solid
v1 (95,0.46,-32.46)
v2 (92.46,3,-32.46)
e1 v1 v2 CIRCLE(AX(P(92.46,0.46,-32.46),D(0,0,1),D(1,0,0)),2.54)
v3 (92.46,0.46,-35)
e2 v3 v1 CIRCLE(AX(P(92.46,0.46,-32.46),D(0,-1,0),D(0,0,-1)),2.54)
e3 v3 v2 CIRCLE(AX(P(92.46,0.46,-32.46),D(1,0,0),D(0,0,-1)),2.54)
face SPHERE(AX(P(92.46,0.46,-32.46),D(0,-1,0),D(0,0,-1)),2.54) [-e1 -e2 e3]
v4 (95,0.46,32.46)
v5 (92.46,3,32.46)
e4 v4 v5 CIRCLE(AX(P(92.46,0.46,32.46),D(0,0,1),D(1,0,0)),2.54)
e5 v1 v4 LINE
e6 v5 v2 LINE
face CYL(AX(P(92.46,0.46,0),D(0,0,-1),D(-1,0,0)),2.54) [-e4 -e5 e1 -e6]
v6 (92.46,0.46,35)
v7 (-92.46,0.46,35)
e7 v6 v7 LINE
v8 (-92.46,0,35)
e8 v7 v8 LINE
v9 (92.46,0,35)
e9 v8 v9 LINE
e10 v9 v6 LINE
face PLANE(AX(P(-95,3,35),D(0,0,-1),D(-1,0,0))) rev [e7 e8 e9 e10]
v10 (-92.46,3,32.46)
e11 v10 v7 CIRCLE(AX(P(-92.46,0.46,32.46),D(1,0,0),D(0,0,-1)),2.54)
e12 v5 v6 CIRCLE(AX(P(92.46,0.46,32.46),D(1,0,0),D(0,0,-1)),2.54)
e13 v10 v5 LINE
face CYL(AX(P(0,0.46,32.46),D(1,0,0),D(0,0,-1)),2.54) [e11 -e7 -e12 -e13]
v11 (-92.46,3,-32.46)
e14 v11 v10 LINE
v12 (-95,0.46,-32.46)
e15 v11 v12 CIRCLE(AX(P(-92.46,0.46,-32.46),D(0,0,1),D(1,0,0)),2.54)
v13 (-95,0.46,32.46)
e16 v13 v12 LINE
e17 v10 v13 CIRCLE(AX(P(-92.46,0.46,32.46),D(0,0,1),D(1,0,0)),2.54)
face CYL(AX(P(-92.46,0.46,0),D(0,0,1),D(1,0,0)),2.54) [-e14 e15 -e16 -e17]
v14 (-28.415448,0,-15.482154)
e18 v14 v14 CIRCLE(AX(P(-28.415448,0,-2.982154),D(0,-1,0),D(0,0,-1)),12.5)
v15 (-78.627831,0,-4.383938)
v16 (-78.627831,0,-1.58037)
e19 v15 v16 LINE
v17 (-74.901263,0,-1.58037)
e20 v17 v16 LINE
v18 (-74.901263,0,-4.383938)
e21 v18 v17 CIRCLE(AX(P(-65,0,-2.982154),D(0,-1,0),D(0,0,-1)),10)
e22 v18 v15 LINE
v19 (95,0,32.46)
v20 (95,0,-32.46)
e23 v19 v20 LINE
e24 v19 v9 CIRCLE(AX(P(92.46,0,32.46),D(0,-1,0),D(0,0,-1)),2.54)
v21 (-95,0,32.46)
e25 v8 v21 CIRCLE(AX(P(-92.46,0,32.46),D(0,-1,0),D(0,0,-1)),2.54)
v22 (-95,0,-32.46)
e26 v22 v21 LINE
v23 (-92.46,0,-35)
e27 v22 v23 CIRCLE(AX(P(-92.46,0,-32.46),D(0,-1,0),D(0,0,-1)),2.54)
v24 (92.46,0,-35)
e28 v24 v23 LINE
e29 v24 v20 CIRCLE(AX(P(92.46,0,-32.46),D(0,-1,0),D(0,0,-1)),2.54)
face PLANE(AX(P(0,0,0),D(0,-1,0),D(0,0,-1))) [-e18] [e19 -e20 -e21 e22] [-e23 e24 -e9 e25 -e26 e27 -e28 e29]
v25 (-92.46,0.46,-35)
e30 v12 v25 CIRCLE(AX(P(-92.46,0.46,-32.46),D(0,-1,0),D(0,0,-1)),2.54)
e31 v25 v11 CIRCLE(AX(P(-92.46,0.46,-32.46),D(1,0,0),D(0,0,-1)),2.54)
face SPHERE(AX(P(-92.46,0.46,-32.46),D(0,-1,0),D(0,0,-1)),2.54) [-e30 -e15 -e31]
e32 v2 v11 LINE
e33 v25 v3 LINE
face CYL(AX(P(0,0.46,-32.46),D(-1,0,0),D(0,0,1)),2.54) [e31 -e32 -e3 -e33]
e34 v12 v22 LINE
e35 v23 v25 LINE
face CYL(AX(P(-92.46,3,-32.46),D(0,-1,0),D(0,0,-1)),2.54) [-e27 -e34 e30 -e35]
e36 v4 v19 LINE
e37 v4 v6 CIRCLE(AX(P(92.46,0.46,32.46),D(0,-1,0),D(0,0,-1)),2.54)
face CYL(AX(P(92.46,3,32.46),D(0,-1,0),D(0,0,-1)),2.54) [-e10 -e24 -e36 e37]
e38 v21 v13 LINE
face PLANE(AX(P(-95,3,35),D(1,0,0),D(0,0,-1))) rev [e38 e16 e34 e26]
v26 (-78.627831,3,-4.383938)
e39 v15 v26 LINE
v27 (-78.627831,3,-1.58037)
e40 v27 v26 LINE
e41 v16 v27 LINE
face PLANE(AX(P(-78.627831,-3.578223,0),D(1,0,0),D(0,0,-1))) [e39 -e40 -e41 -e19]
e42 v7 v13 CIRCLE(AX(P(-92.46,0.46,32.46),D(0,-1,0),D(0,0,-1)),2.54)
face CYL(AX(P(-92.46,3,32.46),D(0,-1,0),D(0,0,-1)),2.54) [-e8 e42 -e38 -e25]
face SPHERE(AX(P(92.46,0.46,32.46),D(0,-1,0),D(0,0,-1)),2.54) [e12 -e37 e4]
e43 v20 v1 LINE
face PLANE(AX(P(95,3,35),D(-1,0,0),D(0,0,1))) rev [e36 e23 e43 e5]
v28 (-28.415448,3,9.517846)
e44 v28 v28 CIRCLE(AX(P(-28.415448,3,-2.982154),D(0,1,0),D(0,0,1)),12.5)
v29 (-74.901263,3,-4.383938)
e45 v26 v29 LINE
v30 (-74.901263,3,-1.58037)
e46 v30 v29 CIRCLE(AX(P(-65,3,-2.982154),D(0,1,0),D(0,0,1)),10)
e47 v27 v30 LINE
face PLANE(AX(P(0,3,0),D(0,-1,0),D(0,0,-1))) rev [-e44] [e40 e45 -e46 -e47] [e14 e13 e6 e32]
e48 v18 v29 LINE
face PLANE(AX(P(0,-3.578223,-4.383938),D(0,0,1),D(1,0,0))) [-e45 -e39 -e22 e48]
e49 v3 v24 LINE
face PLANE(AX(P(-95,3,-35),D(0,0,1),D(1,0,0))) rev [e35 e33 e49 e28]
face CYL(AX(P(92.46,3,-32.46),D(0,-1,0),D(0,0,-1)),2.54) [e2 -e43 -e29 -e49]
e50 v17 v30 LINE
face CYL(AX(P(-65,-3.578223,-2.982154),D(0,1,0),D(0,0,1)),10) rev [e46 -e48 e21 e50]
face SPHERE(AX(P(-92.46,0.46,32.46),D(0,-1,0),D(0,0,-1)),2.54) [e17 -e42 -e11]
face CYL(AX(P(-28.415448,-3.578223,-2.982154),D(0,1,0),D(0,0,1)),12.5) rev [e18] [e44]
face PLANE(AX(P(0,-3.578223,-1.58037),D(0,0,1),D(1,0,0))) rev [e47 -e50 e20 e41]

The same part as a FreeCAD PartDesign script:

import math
import FreeCAD as App
import Part
import Sketcher
Q = App.Units.Quantity


def edges_at(feature, points):
    """Names of the edges that pass closest to the given points."""
    edges = feature.Shape.Edges
    near = lambda p: min(range(len(edges)), key=lambda i: edges[i].distToShape(Part.Vertex(*p))[0])
    return sorted({f"Edge{near(p) + 1}" for p in points})

doc = App.newDocument("Part")
body = doc.addObject("PartDesign::Body", "Body")

# Sketch on XZ plane
sketch1 = doc.addObject("Sketcher::SketchObject", "Sketch")
body.addObject(sketch1)
sketch1.AttachmentSupport = (doc.XZ_Plane, [""])
sketch1.MapMode = "FlatFace"
sketch1.addGeometry([
    Part.LineSegment(App.Vector(-95, -35, 0), App.Vector(-95, 35, 0)),
    Part.LineSegment(App.Vector(-95, 35, 0), App.Vector(95, 35, 0)),
    Part.LineSegment(App.Vector(95, 35, 0), App.Vector(95, -35, 0)),
    Part.LineSegment(App.Vector(95, -35, 0), App.Vector(-95, -35, 0)),
], False)
sketch1.addConstraint([
    Sketcher.Constraint("Coincident", 0, 2, 1, 1),
    Sketcher.Constraint("Coincident", 1, 2, 2, 1),
    Sketcher.Constraint("Coincident", 2, 2, 3, 1),
    Sketcher.Constraint("Coincident", 3, 2, 0, 1),
    Sketcher.Constraint("Vertical", 0),
    Sketcher.Constraint("Horizontal", 1),
    Sketcher.Constraint("Vertical", 2),
    Sketcher.Constraint("Horizontal", 3),
    Sketcher.Constraint("Symmetric", 0, 2, 2, 2, -1, 1),
    Sketcher.Constraint("DistanceX", 1, 1, 1, 2, Q("190 mm")),
    Sketcher.Constraint("DistanceY", 0, 1, 0, 2, Q("70 mm")),
])
pad1 = doc.addObject("PartDesign::Pad", "Pad")
body.addObject(pad1)
pad1.Profile = sketch1
pad1.Length = 3
pad1.Reversed = True
doc.recompute()

fillet = doc.addObject("PartDesign::Fillet", "Fillet")
body.addObject(fillet)
fillet.Base = (pad1, edges_at(pad1, [
    (95, 1.5, 35),
    (-95, 1.5, 35),
    (-95, 1.5, -35),
    (95, 1.5, -35),
]))
fillet.Radius = 2.54
doc.recompute()

fillet2 = doc.addObject("PartDesign::Fillet", "Fillet001")
body.addObject(fillet2)
fillet2.Base = (fillet, edges_at(fillet, [
    (0, 3, -35),
    (95, 3, 0),
    (-95, 3, 0),
    (0, 3, 35),
    (-94.256, 3, -34.256),
    (-94.256, 3, 34.256),
    (94.256, 3, 34.256),
    (94.256, 3, -34.256),
]))
fillet2.Radius = 2.54

# Sketch on XZ plane
sketch2 = doc.addObject("Sketcher::SketchObject", "Sketch001")
body.addObject(sketch2)
sketch2.AttachmentSupport = (doc.XZ_Plane, [""])
sketch2.MapMode = "FlatFace"
sketch2.AttachmentOffset = App.Placement(App.Vector(0, 0, -3), App.Rotation())
sketch2.addGeometry([
    Part.ArcOfCircle(Part.Circle(App.Vector(-65, -3, 0), App.Vector(0, 0, 1), 10), math.radians(0), math.radians(172)),  # 0
    Part.ArcOfCircle(Part.Circle(App.Vector(-65, -3, 0), App.Vector(0, 0, 1), 10), math.radians(-172), math.radians(0)),  # 1
    Part.LineSegment(App.Vector(-74.9, -4.4, 0), App.Vector(-78.6, -4.4, 0)),  # 2
    Part.LineSegment(App.Vector(-78.6, -4.4, 0), App.Vector(-78.6, -1.6, 0)),  # 3
    Part.LineSegment(App.Vector(-78.6, -1.6, 0), App.Vector(-74.9, -1.6, 0)),  # 4
    Part.Circle(App.Vector(-28.4, -3, 0), App.Vector(0, 0, 1), 12.5),  # 5
], False)
sketch2.addConstraint([
    Sketcher.Constraint("Tangent", 0, 1, 1, 2),
    Sketcher.Constraint("Coincident", 1, 1, 2, 1),
    Sketcher.Constraint("Coincident", 2, 2, 3, 1),
    Sketcher.Constraint("Coincident", 3, 2, 4, 1),
    Sketcher.Constraint("Coincident", 4, 2, 0, 2),
    Sketcher.Constraint("Horizontal", 2),
    Sketcher.Constraint("Vertical", 3),
    Sketcher.Constraint("Horizontal", 4),
    Sketcher.Constraint("Equal", 0, 1),
    Sketcher.Constraint("Horizontal", 1, 3, 5, 3),
    Sketcher.Constraint("Horizontal", 5, 3, 0, 1),
    Sketcher.Constraint("Vertical", 1, 1, 4, 2),
    Sketcher.Constraint("Diameter", 5, Q("25 mm")),
    Sketcher.Constraint("Radius", 0, Q("10 mm")),
    Sketcher.Constraint("DistanceX", 0, 3, -1, 1, Q("65 mm")),
    Sketcher.Constraint("DistanceX", 2, 2, 2, 1, Q("3.726568 mm")),
    Sketcher.Constraint("DistanceY", 3, 1, 3, 2, Q("2.803568 mm")),
    Sketcher.Constraint("DistanceX", 5, 3, -1, 1, Q("28.415448 mm")),
    Sketcher.Constraint("DistanceY", 3, 2, -1, 1, Q("1.58037 mm")),
])
pocket1 = doc.addObject("PartDesign::Pocket", "Pocket")
body.addObject(pocket1)
pocket1.Profile = sketch2
pocket1.Length = 6.578223
pocket1.Reversed = True

doc.recompute()
